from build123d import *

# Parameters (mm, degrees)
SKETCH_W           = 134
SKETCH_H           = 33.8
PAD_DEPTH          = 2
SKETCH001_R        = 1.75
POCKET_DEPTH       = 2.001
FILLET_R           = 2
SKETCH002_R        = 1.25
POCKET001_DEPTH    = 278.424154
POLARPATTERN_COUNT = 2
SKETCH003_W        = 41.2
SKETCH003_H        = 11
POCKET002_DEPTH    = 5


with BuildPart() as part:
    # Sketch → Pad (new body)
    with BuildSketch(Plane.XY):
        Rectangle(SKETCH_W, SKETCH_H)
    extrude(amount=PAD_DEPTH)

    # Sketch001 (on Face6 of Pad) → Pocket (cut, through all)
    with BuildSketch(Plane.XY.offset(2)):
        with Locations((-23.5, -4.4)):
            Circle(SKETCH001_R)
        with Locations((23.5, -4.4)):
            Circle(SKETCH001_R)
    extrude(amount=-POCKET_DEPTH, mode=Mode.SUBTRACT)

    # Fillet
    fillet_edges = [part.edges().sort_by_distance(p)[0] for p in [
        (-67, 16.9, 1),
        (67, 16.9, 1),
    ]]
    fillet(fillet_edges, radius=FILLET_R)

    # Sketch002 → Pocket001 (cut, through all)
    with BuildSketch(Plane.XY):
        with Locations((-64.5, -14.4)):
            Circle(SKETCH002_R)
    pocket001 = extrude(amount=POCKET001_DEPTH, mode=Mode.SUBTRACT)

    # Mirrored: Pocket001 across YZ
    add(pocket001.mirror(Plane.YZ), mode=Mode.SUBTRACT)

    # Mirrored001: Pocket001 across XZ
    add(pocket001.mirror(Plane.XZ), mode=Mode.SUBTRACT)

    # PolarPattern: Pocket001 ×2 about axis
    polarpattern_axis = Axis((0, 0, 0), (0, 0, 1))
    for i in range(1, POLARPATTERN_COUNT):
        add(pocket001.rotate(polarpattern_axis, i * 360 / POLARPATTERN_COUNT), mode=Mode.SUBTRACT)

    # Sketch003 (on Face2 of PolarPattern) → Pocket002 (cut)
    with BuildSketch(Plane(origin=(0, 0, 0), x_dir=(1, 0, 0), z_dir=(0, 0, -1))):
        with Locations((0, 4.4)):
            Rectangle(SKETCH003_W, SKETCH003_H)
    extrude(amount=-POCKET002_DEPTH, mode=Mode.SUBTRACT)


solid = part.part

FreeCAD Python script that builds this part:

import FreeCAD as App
import Part
import Sketcher


def edges_at(feature, points):
    """Names of the edges that pass closest to the given points."""
    edges = feature.Shape.Edges
    near = lambda p: min(range(len(edges)), key=lambda i: edges[i].distToShape(Part.Vertex(*p))[0])
    return sorted({f"Edge{near(p) + 1}" for p in points})


def add_polygon(sketch, points):
    """Adds a closed chain of lines whose ends are joined by coincident constraints."""
    first, n = sketch.GeometryCount, len(points)
    for a, b in zip(points, points[1:] + points[:1]):
        sketch.addGeometry(Part.LineSegment(App.Vector(*a, 0), App.Vector(*b, 0)), False)
    for i in range(n):
        sketch.addConstraint(Sketcher.Constraint("Coincident", first + i, 2, first + (i + 1) % n, 1))

doc = App.newDocument("Part")
body = doc.addObject("PartDesign::Body", "Body")

sketch1 = doc.addObject("Sketcher::SketchObject", "Sketch")
body.addObject(sketch1)
sketch1.AttachmentSupport = (doc.XY_Plane, [""])
sketch1.MapMode = "FlatFace"
add_polygon(sketch1, [(-67, 17), (-67, -17), (67, -17), (67, 17)])
sketch1.addConstraint([
    Sketcher.Constraint("Vertical", 0),
    Sketcher.Constraint("Horizontal", 1),
    Sketcher.Constraint("Vertical", 2),
    Sketcher.Constraint("Horizontal", 3),
    Sketcher.Constraint("Symmetric", 0, 2, 2, 2, -1, 1),
    Sketcher.Constraint("DistanceX", 1, 1, 1, 2, 134.0),
    Sketcher.Constraint("DistanceY", 0, 2, 0, 1, 33.8),
])
pad1 = doc.addObject("PartDesign::Pad", "Pad")
body.addObject(pad1)
pad1.Profile = sketch1
pad1.Length = 2

sketch2 = doc.addObject("Sketcher::SketchObject", "Sketch001")
body.addObject(sketch2)
sketch2.AttachmentSupport = (doc.XY_Plane, [""])
sketch2.MapMode = "FlatFace"
sketch2.AttachmentOffset = App.Placement(App.Vector(0, 0, 2), App.Rotation())
sketch2.addGeometry([
    Part.Circle(App.Vector(-23.5, -4.4, 0), App.Vector(0, 0, 1), 1.8),
    Part.Circle(App.Vector(23.5, -4.4, 0), App.Vector(0, 0, 1), 1.8),
], False)
sketch2.addConstraint([
    Sketcher.Constraint("Equal", 0, 1),
    Sketcher.Constraint("Symmetric", 0, 3, 1, 3, -2),
    Sketcher.Constraint("Diameter", 0, 3.5),
    Sketcher.Constraint("DistanceX", 0, 3, 1, 3, 47.0),
    Sketcher.Constraint("DistanceY", 0, 3, -1, 1, 4.4),
])
pocket1 = doc.addObject("PartDesign::Pocket", "Pocket")
body.addObject(pocket1)
pocket1.Profile = sketch2
pocket1.Type = "ThroughAll"
doc.recompute()

fillet = doc.addObject("PartDesign::Fillet", "Fillet")
body.addObject(fillet)
fillet.Base = (pocket1, edges_at(pocket1, [(-67, 16.9, 1), (67, 16.9, 1)]))
fillet.Radius = 2

sketch3 = doc.addObject("Sketcher::SketchObject", "Sketch002")
body.addObject(sketch3)
sketch3.AttachmentSupport = (doc.XY_Plane, [""])
sketch3.MapMode = "FlatFace"
sketch3.addGeometry(Part.Circle(App.Vector(-64.5, -14.4, 0), App.Vector(0, 0, 1), 1.2), False)
sketch3.addConstraint([
    Sketcher.Constraint("Diameter", 0, 2.5),
    Sketcher.Constraint("DistanceX", 0, 3, -1, 1, 64.5),
    Sketcher.Constraint("DistanceY", 0, 3, -1, 1, 14.4),
])
pocket2 = doc.addObject("PartDesign::Pocket", "Pocket001")
body.addObject(pocket2)
pocket2.Profile = sketch3
pocket2.Type = "ThroughAll"
pocket2.Reversed = True
doc.recompute()

mirrored = doc.addObject("PartDesign::Mirrored", "Mirrored")
body.addObject(mirrored)
mirrored.Originals = [pocket2]
mirrored.MirrorPlane = (doc.YZ_Plane, [""])
body.Tip = mirrored
doc.recompute()

mirrored2 = doc.addObject("PartDesign::Mirrored", "Mirrored001")
body.addObject(mirrored2)
mirrored2.Originals = [pocket2]
mirrored2.MirrorPlane = (doc.XZ_Plane, [""])
body.Tip = mirrored2
doc.recompute()

polarpattern = doc.addObject("PartDesign::PolarPattern", "PolarPattern")
body.addObject(polarpattern)
polarpattern.Originals = [pocket2]
polarpattern.Axis = (doc.Z_Axis, [""])
polarpattern.Angle = 360
polarpattern.Occurrences = 2
body.Tip = polarpattern

sketch4 = doc.addObject("Sketcher::SketchObject", "Sketch003")
body.addObject(sketch4)
sketch4.AttachmentSupport = (doc.XY_Plane, [""])
sketch4.MapMode = "FlatFace"
add_polygon(sketch4, [(-21, -10), (-21, 1), (21, 1), (21, -10)])
sketch4.addConstraint([
    Sketcher.Constraint("Vertical", 0),
    Sketcher.Constraint("Horizontal", 1),
    Sketcher.Constraint("Vertical", 2),
    Sketcher.Constraint("Horizontal", 3),
    Sketcher.Constraint("DistanceY", 0, 1, 0, 2, 11.0),
    Sketcher.Constraint("DistanceX", 1, 1, 1, 2, 41.2),
    Sketcher.Constraint("DistanceX", 0, 2, -1, 1, 20.6),
    Sketcher.Constraint("DistanceY", -1, 1, 0, 2, 1.1),
])
pocket3 = doc.addObject("PartDesign::Pocket", "Pocket002")
body.addObject(pocket3)
pocket3.Profile = sketch4
pocket3.Length = 5
pocket3.Reversed = True

doc.recompute()
